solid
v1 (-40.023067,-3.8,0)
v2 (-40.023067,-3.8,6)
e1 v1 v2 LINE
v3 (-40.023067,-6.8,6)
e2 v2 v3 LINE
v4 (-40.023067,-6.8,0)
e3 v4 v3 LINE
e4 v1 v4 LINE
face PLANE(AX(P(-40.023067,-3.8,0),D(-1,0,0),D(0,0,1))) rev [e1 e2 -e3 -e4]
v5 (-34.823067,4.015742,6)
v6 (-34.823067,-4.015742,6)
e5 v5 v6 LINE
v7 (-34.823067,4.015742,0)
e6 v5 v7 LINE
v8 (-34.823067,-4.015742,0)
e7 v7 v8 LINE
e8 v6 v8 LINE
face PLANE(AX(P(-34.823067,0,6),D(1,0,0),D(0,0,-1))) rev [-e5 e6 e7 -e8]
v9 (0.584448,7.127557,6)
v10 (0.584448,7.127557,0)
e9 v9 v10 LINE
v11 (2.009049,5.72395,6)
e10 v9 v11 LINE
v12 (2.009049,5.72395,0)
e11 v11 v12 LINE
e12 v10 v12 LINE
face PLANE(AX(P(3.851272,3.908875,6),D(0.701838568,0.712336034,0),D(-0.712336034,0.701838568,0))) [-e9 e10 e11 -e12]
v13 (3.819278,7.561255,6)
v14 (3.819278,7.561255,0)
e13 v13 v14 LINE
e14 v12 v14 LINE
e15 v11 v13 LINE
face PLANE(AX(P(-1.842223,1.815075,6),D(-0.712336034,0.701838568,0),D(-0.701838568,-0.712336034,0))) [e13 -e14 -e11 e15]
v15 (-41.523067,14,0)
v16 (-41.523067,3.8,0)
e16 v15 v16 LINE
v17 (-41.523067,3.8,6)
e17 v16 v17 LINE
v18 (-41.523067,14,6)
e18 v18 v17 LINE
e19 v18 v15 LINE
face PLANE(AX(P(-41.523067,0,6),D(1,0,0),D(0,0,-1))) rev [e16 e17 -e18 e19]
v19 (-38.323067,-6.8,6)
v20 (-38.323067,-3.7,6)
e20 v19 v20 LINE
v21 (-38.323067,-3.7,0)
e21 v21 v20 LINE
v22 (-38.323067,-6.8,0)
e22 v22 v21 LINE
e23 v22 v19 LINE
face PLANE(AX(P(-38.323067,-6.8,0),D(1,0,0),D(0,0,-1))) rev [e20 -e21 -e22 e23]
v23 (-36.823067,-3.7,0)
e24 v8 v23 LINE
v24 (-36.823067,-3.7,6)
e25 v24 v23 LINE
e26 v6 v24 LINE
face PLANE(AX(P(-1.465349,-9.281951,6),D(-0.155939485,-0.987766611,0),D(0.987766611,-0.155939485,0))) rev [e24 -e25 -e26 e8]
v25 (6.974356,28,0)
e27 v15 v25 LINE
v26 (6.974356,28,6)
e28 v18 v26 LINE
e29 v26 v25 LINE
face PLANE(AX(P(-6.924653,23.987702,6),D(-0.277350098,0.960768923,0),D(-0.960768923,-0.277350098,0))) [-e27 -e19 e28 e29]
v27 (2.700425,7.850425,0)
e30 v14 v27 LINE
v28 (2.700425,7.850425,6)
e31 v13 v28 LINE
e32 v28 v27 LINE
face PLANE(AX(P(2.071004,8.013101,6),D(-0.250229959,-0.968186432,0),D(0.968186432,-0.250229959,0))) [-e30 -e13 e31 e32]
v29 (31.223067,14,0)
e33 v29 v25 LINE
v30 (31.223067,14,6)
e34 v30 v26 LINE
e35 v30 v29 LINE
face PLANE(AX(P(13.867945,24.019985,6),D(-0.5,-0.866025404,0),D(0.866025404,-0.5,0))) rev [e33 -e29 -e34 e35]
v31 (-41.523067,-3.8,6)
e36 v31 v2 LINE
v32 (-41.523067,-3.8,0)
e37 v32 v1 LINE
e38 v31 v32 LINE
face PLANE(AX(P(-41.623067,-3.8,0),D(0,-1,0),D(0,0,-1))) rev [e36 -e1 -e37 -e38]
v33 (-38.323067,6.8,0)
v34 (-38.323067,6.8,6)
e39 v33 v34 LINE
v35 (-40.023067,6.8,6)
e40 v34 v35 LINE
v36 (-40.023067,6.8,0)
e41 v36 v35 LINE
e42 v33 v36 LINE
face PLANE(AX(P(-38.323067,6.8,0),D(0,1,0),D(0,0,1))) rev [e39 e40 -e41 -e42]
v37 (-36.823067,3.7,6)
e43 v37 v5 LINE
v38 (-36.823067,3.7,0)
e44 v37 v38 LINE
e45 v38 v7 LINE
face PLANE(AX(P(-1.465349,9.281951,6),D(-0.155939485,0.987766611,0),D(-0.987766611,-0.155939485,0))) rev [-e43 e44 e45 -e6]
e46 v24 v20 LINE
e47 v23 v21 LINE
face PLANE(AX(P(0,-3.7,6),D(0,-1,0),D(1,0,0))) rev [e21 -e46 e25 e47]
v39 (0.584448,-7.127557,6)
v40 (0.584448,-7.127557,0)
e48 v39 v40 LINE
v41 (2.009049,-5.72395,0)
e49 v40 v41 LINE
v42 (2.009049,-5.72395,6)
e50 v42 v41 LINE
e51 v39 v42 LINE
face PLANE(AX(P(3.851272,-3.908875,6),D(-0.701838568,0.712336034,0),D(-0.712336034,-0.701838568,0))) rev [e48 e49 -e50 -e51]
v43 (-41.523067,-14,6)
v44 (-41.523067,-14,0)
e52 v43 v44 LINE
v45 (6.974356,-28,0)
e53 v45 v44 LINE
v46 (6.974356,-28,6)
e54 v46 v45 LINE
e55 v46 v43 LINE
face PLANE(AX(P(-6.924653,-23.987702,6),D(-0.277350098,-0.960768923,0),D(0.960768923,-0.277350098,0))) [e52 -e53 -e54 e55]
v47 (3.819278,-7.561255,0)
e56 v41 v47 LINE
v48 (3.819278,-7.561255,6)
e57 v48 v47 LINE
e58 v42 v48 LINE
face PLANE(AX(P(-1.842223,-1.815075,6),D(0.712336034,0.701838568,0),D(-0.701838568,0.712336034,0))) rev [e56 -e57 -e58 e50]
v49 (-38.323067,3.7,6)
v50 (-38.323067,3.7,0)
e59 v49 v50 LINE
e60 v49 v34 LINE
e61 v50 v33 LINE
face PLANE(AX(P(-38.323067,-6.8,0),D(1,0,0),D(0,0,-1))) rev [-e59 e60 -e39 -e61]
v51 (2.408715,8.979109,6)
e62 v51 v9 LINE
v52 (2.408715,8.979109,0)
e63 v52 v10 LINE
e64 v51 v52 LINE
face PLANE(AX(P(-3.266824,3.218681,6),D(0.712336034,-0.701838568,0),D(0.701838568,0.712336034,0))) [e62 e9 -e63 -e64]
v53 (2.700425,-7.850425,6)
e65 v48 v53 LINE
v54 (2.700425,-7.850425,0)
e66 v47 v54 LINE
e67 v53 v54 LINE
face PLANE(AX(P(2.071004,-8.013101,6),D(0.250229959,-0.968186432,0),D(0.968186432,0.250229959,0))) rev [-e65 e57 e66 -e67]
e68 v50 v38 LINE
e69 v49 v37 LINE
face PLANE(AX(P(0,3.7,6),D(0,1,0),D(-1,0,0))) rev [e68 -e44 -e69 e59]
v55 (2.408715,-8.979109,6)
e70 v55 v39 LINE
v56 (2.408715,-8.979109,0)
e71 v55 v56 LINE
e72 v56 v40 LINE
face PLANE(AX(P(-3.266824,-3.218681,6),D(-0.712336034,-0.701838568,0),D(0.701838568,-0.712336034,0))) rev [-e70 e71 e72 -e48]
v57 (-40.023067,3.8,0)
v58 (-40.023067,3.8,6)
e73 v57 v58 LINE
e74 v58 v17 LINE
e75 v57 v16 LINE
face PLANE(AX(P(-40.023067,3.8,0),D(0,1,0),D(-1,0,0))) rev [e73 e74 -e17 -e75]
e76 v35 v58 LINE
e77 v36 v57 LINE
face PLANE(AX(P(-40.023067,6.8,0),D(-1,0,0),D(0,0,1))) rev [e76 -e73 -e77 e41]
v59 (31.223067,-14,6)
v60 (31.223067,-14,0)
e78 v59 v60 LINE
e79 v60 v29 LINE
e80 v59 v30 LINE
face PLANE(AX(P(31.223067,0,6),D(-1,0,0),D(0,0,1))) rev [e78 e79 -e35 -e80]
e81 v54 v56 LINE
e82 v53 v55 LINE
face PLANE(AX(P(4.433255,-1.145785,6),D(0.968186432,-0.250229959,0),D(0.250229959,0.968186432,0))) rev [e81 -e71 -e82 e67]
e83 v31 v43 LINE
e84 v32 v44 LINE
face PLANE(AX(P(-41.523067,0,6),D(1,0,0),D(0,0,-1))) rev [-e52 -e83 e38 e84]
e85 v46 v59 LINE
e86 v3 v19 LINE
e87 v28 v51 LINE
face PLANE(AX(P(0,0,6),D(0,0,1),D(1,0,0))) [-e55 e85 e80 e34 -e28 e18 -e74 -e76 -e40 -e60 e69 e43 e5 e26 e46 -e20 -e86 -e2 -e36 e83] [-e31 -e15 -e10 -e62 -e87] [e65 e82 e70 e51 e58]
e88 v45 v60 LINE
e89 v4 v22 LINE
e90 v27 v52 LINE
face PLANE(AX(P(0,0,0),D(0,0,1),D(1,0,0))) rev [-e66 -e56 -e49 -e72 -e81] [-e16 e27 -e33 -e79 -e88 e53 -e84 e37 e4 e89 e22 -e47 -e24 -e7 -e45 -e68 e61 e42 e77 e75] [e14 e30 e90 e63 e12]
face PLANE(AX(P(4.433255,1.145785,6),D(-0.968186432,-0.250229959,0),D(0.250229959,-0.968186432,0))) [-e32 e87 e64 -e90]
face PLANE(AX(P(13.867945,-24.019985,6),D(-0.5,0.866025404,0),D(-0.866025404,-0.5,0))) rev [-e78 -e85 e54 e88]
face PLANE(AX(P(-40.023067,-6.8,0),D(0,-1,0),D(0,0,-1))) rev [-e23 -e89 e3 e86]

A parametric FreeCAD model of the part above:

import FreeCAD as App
import Part
import Sketcher
from FreeCAD import Vector
Q = App.Units.Quantity

doc = App.newDocument("Part")
params = doc.addObject("Spreadsheet::Sheet", "Params")
for row, (alias, value) in enumerate([
    ("sketch1_height", "28 mm"),
    ("sketch1_length", "28 mm"),
    ("sketch1_width", "4.7 mm"),
    ("sketch1_height2", "10.3 mm"),
    ("pad1_length", "6 mm"),
    ("sketch2_height", "3 mm"),
    ("sketch2_width", "1.6 mm"),
    ("sketch2_width2", "1.7 mm"),
    ("sketch2_height2", "13.6 mm"),
], start=1):
    params.set(f"A{row}", alias)
    params.set(f"B{row}", "=" + value)
    params.setAlias(f"B{row}", alias)

body = doc.addObject("PartDesign::Body", "Body")

# Sketch on XY plane
sketch1 = doc.addObject("Sketcher::SketchObject", "Sketch")
body.addObject(sketch1)
sketch1.AttachmentSupport = (doc.XY_Plane, [""])
sketch1.MapMode = "FlatFace"
sketch1.addGeometry([
    Part.LineSegment(Vector(31.2, -14, 0), Vector(31.2, 14, 0)),  # 0
    Part.LineSegment(Vector(31.2, 14, 0), Vector(7, 28, 0)),  # 1
    Part.LineSegment(Vector(7, 28, 0), Vector(-41.5, 14, 0)),  # 2
    Part.LineSegment(Vector(-41.5, 14, 0), Vector(-41.5, 3.7, 0)),  # 3
    Part.LineSegment(Vector(-41.5, 3.7, 0), Vector(-36.8, 3.7, 0)),  # 4
    Part.LineSegment(Vector(-36.8, 3.7, 0), Vector(-34.8, 4, 0)),  # 5
    Part.LineSegment(Vector(-34.8, 4, 0), Vector(-34.8, -4, 0)),  # 6
    Part.LineSegment(Vector(-34.8, -4, 0), Vector(-36.8, -3.7, 0)),  # 7
    Part.LineSegment(Vector(-36.8, -3.7, 0), Vector(-41.5, -3.7, 0)),  # 8
    Part.LineSegment(Vector(-41.5, -3.7, 0), Vector(-41.5, -14, 0)),  # 9
    Part.LineSegment(Vector(-41.5, -14, 0), Vector(7, -28, 0)),  # 10
    Part.LineSegment(Vector(7, -28, 0), Vector(31.2, -14, 0)),  # 11
    Part.LineSegment(Vector(3.8, -7.6, 0), Vector(2.7, -7.9, 0)),  # 12
    Part.LineSegment(Vector(2.7, -7.9, 0), Vector(2.4, -9, 0)),  # 13
    Part.LineSegment(Vector(2.4, -9, 0), Vector(0.6, -7.1, 0)),  # 14
    Part.LineSegment(Vector(0.6, -7.1, 0), Vector(2, -5.7, 0)),  # 15
    Part.LineSegment(Vector(2, -5.7, 0), Vector(3.8, -7.6, 0)),  # 16
    Part.LineSegment(Vector(2.4, 9, 0), Vector(2.7, 7.9, 0)),  # 17
    Part.LineSegment(Vector(2.7, 7.9, 0), Vector(3.8, 7.6, 0)),  # 18
    Part.LineSegment(Vector(3.8, 7.6, 0), Vector(2, 5.7, 0)),  # 19
    Part.LineSegment(Vector(2, 5.7, 0), Vector(0.6, 7.1, 0)),  # 20
    Part.LineSegment(Vector(0.6, 7.1, 0), Vector(2.4, 9, 0)),  # 21
], False)
sketch1.addConstraint([
    Sketcher.Constraint("Coincident", 0, 2, 1, 1),
    Sketcher.Constraint("Coincident", 1, 2, 2, 1),
    Sketcher.Constraint("Coincident", 2, 2, 3, 1),
    Sketcher.Constraint("Coincident", 3, 2, 4, 1),
    Sketcher.Constraint("Coincident", 4, 2, 5, 1),
    Sketcher.Constraint("Coincident", 5, 2, 6, 1),
    Sketcher.Constraint("Coincident", 6, 2, 7, 1),
    Sketcher.Constraint("Coincident", 7, 2, 8, 1),
    Sketcher.Constraint("Coincident", 8, 2, 9, 1),
    Sketcher.Constraint("Coincident", 9, 2, 10, 1),
    Sketcher.Constraint("Coincident", 10, 2, 11, 1),
    Sketcher.Constraint("Coincident", 11, 2, 0, 1),
    Sketcher.Constraint("Coincident", 12, 2, 13, 1),
    Sketcher.Constraint("Coincident", 13, 2, 14, 1),
    Sketcher.Constraint("Coincident", 14, 2, 15, 1),
    Sketcher.Constraint("Coincident", 15, 2, 16, 1),
    Sketcher.Constraint("Coincident", 16, 2, 12, 1),
    Sketcher.Constraint("Coincident", 17, 2, 18, 1),
    Sketcher.Constraint("Coincident", 18, 2, 19, 1),
    Sketcher.Constraint("Coincident", 19, 2, 20, 1),
    Sketcher.Constraint("Coincident", 20, 2, 21, 1),
    Sketcher.Constraint("Coincident", 21, 2, 17, 1),
    Sketcher.Constraint("Vertical", 0),
    Sketcher.Constraint("Vertical", 3),
    Sketcher.Constraint("Horizontal", 4),
    Sketcher.Constraint("Vertical", 6),
    Sketcher.Constraint("Horizontal", 8),
    Sketcher.Constraint("Vertical", 9),
    Sketcher.Constraint("Symmetric", 4, 2, 7, 2, -1),
    Sketcher.Constraint("Symmetric", 2, 2, 9, 2, -1),
    Sketcher.Constraint("Symmetric", 1, 2, 10, 2, -1),
    Sketcher.Constraint("Symmetric", 12, 2, 17, 2, -1),
    Sketcher.Constraint("Symmetric", 16, 2, 18, 2, -1),
    Sketcher.Constraint("Symmetric", 15, 2, 19, 2, -1),
    Sketcher.Constraint("Symmetric", 14, 2, 20, 2, -1),
    Sketcher.Constraint("Symmetric", 13, 2, 21, 2, -1),
    Sketcher.Constraint("Perpendicular", 14, 15),
    Sketcher.Constraint("Perpendicular", 15, 16),
    Sketcher.Constraint("Perpendicular", 12, 17),
    Sketcher.Constraint("Horizontal", 0, 2, 2, 2),
    Sketcher.Constraint("Horizontal", 9, 2, 11, 2),
    Sketcher.Constraint("Equal", 5, 7),
    Sketcher.Constraint("DistanceY", 0, 1, 0, 2, 28.0),
    Sketcher.Constraint("Angle", 1, Q("150 deg")),
    Sketcher.Constraint("Distance", 1, 28.0),
    Sketcher.Constraint("DistanceX", 4, 1, 4, 2, 4.7),
    Sketcher.Constraint("DistanceY", 3, 2, 3, 1, 10.3),
    Sketcher.Constraint("DistanceX", 4, 2, 5, 2, 2.0),
    Sketcher.Constraint("Distance", 15, 1.9999),
    Sketcher.Constraint("DistanceX", 14, 2, 15, 2, 1.424601),
    Sketcher.Constraint("DistanceY", 16, 2, 14, 2, 0.433699),
    Sketcher.Constraint("DistanceY", 15, 2, 19, 2, 11.4479),
    Sketcher.Constraint("Distance", 5, 2.02477),
    Sketcher.Constraint("Distance", 13, 1.165771),
    Sketcher.Constraint("Distance", 14, 2.599268),
    Sketcher.Constraint("DistanceX", -1, 1, 15, 2, 2.009049),
    Sketcher.Constraint("DistanceX", 12, 2, 10, 2, 4.27393),
    Sketcher.Constraint("Distance", 2, 50.477718),
])
sketch1.setExpression("Constraints[42]", "Params.sketch1_height")
sketch1.setExpression("Constraints[44]", "Params.sketch1_length")
sketch1.setExpression("Constraints[45]", "Params.sketch1_width")
sketch1.setExpression("Constraints[46]", "Params.sketch1_height2")
pad1 = doc.addObject("PartDesign::Pad", "Pad")
body.addObject(pad1)
pad1.Profile = sketch1
pad1.setExpression("Length", "Params.pad1_length")

# Sketch on XY plane
sketch2 = doc.addObject("Sketcher::SketchObject", "Sketch001")
body.addObject(sketch2)
sketch2.AttachmentSupport = (doc.XY_Plane, [""])
sketch2.MapMode = "FlatFace"
sketch2.AttachmentOffset = App.Placement(Vector(0, 0, 6), App.Rotation())
sketch2.addGeometry([
    Part.LineSegment(Vector(-41.6, -3.8, 0), Vector(-40, -3.8, 0)),  # 0
    Part.LineSegment(Vector(-40, -3.8, 0), Vector(-40, -6.8, 0)),  # 1
    Part.LineSegment(Vector(-40, -6.8, 0), Vector(-38.3, -6.8, 0)),  # 2
    Part.LineSegment(Vector(-38.3, -6.8, 0), Vector(-38.3, 6.8, 0)),  # 3
    Part.LineSegment(Vector(-38.3, 6.8, 0), Vector(-40, 6.8, 0)),  # 4
    Part.LineSegment(Vector(-40, 6.8, 0), Vector(-40, 3.8, 0)),  # 5
    Part.LineSegment(Vector(-40, 3.8, 0), Vector(-41.6, 3.8, 0)),  # 6
    Part.LineSegment(Vector(-41.6, 3.8, 0), Vector(-41.6, -3.8, 0)),  # 7
], False)
sketch2.addConstraint([
    Sketcher.Constraint("Coincident", 0, 2, 1, 1),
    Sketcher.Constraint("Coincident", 1, 2, 2, 1),
    Sketcher.Constraint("Coincident", 2, 2, 3, 1),
    Sketcher.Constraint("Coincident", 3, 2, 4, 1),
    Sketcher.Constraint("Coincident", 4, 2, 5, 1),
    Sketcher.Constraint("Coincident", 5, 2, 6, 1),
    Sketcher.Constraint("Coincident", 6, 2, 7, 1),
    Sketcher.Constraint("Coincident", 7, 2, 0, 1),
    Sketcher.Constraint("Horizontal", 0),
    Sketcher.Constraint("Vertical", 1),
    Sketcher.Constraint("Horizontal", 2),
    Sketcher.Constraint("Vertical", 3),
    Sketcher.Constraint("Horizontal", 4),
    Sketcher.Constraint("Vertical", 5),
    Sketcher.Constraint("Horizontal", 6),
    Sketcher.Constraint("Vertical", 7),
    Sketcher.Constraint("Symmetric", 1, 2, 4, 2, -1),
    Sketcher.Constraint("Equal", 1, 5),
    Sketcher.Constraint("DistanceY", 1, 2, 1, 1, 3.0),
    Sketcher.Constraint("DistanceX", 0, 1, 0, 2, 1.6),
    Sketcher.Constraint("DistanceX", 2, 1, 2, 2, 1.7),
    Sketcher.Constraint("DistanceY", 3, 1, 3, 2, 13.6),
    Sketcher.Constraint("DistanceX", 0, 2, -1, 1, 40.023067),
])
sketch2.setExpression("Constraints[18]", "Params.sketch2_height")
sketch2.setExpression("Constraints[19]", "Params.sketch2_width")
sketch2.setExpression("Constraints[20]", "Params.sketch2_width2")
sketch2.setExpression("Constraints[21]", "Params.sketch2_height2")
pocket1 = doc.addObject("PartDesign::Pocket", "Pocket")
body.addObject(pocket1)
pocket1.Profile = sketch2
pocket1.Type = "ThroughAll"

doc.recompute()
